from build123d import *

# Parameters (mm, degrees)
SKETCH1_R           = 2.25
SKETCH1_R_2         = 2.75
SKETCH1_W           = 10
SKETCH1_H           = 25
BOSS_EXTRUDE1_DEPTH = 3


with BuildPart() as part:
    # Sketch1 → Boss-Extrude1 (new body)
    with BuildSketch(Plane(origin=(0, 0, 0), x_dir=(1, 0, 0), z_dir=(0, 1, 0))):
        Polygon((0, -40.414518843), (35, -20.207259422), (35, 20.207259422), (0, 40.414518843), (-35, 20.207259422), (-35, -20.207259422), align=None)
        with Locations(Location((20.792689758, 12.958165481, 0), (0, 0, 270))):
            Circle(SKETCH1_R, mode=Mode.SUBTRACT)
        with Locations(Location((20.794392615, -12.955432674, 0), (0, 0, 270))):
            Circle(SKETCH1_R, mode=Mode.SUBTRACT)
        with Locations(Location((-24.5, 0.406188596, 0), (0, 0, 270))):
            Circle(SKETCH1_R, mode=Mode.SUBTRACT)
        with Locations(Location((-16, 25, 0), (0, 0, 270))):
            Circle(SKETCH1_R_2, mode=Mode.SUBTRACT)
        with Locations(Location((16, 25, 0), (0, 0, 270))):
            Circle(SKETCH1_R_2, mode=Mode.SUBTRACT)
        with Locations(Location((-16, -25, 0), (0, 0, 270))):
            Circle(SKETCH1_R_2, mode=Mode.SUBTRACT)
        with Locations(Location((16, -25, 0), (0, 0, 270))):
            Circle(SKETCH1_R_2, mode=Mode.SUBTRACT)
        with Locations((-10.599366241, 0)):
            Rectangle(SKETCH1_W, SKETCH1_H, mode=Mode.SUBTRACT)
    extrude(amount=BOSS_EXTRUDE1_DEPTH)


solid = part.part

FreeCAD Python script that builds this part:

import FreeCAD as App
import Part
import Sketcher
Q = App.Units.Quantity


def add_polygon(sketch, points):
    """Adds a closed chain of lines whose ends are joined by coincident constraints."""
    first, n = sketch.GeometryCount, len(points)
    for a, b in zip(points, points[1:] + points[:1]):
        sketch.addGeometry(Part.LineSegment(App.Vector(*a, 0), App.Vector(*b, 0)), False)
    for i in range(n):
        sketch.addConstraint(Sketcher.Constraint("Coincident", first + i, 2, first + (i + 1) % n, 1))

doc = App.newDocument("Part")
body = doc.addObject("PartDesign::Body", "Body")

sketch1 = body.newObject("Sketcher::SketchObject", "Sketch")
sketch1.AttachmentSupport = (doc.getObject("XZ_Plane"), [""])
sketch1.MapMode = "FlatFace"
add_polygon(sketch1, [(0, 40.4), (35, 20.2), (35, -20.2), (0, -40.4), (-35, -20.2), (-35, 20.2)])
sketch1.addGeometry(Part.Circle(App.Vector(-16, 25, 0), App.Vector(0, 0, 1), 2.8), False)
sketch1.addGeometry(Part.Circle(App.Vector(16, 25, 0), App.Vector(0, 0, 1), 2.8), False)
sketch1.addGeometry(Part.Circle(App.Vector(20.8, 13, 0), App.Vector(0, 0, 1), 2.2), False)
sketch1.addGeometry(Part.Circle(App.Vector(-24.5, -0.4, 0), App.Vector(0, 0, 1), 2.2), False)
add_polygon(sketch1, [(-5.6, 12.5), (-15.6, 12.5), (-15.6, -12.5), (-5.6, -12.5)])
sketch1.addGeometry(Part.Circle(App.Vector(-16, -25, 0), App.Vector(0, 0, 1), 2.8), False)
sketch1.addGeometry(Part.Circle(App.Vector(20.8, -13, 0), App.Vector(0, 0, 1), 2.2), False)
sketch1.addGeometry(Part.Circle(App.Vector(16, -25, 0), App.Vector(0, 0, 1), 2.8), False)
sketch1.addConstraint([
    Sketcher.Constraint("Vertical", 1),
    Sketcher.Constraint("Vertical", 4),
    Sketcher.Constraint("Horizontal", 10),
    Sketcher.Constraint("Vertical", 11),
    Sketcher.Constraint("Horizontal", 12),
    Sketcher.Constraint("Vertical", 13),
    Sketcher.Constraint("Equal", 6, 7),
    Sketcher.Constraint("Equal", 8, 9),
    Sketcher.Constraint("Equal", 7, 14),
    Sketcher.Constraint("Equal", 9, 15),
    Sketcher.Constraint("Equal", 14, 16),
    Sketcher.Constraint("Symmetric", 7, 3, 14, 3, -1, 1),
    Sketcher.Constraint("Symmetric", 6, 3, 16, 3, -1, 1),
    Sketcher.Constraint("Symmetric", 0, 2, 3, 2, -1, 1),
    Sketcher.Constraint("Symmetric", 2, 2, 5, 2, -1, 1),
    Sketcher.Constraint("Symmetric", 6, 3, 7, 3, -2),
    Sketcher.Constraint("PointOnObject", 2, 2, -2),
    Sketcher.Constraint("Parallel", 2, 5),
    Sketcher.Constraint("Horizontal", 1, 2, 3, 2),
    Sketcher.Constraint("Diameter", 6, 5.5),
    Sketcher.Constraint("Diameter", 8, 4.5),
    Sketcher.Constraint("DistanceX", 10, 2, 10, 1, 10.0),
    Sketcher.Constraint("DistanceY", 11, 2, 11, 1, 25.0),
    Sketcher.Constraint("Angle", 0, Q("-30 deg")),
    Sketcher.Constraint("DistanceX", 6, 3, -1, 1, 16.0),
    Sketcher.Constraint("DistanceY", -1, 1, 6, 3, 25.0),
    Sketcher.Constraint("DistanceX", -1, 1, 0, 2, 35.0),
    Sketcher.Constraint("DistanceX", 9, 3, -1, 1, 24.5),
    Sketcher.Constraint("DistanceY", -1, 1, 10, 2, 12.5),
    Sketcher.Constraint("DistanceY", 1, 2, 1, 1, 40.414519),
    Sketcher.Constraint("DistanceY", 15, 3, 8, 3, 25.913598),
    Sketcher.Constraint("DistanceY", 9, 3, -1, 1, 0.406189),
    Sketcher.Constraint("DistanceX", -1, 1, 15, 3, 20.79269),
    Sketcher.Constraint("DistanceY", 9, 3, 8, 3, 13.361621),
    Sketcher.Constraint("DistanceX", -1, 1, 8, 3, 20.794393),
    Sketcher.Constraint("DistanceX", 10, 2, -1, 1, 15.599366),
])
pad1 = body.newObject("PartDesign::Pad", "Pad")
pad1.Profile = sketch1
pad1.Length = 3
pad1.Reversed = True

doc.recompute()
